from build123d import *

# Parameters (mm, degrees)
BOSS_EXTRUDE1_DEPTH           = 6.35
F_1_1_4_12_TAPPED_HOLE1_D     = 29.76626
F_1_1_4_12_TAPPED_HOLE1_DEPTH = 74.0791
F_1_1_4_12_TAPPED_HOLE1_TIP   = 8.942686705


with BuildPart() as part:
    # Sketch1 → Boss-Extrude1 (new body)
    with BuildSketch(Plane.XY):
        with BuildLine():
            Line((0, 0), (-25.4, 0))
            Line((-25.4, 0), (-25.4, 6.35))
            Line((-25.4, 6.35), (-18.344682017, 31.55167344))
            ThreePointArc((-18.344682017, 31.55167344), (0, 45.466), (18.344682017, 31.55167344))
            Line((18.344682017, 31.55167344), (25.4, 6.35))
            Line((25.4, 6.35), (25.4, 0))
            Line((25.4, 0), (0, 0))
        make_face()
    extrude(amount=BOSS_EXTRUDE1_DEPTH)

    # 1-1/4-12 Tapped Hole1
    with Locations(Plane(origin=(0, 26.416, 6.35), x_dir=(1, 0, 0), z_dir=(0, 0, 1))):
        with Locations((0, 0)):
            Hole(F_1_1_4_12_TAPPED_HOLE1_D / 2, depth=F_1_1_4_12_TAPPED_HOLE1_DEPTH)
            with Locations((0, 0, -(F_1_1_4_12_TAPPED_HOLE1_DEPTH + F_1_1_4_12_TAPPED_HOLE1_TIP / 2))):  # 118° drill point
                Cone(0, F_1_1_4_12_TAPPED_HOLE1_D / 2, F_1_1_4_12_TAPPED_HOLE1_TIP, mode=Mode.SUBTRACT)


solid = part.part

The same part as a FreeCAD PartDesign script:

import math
import FreeCAD as App
import Part
import Sketcher

V = App.Vector
Q = App.Units.Quantity

doc = App.newDocument("Part")
params = doc.addObject("Spreadsheet::Sheet", "Params")
for row, (alias, value) in enumerate([
    ("sketch1_width", "2 in"),
    ("sketch1_radius", "0.75 in"),
    ("sketch1_height", "0.25 in"),
    ("pad1_length", "0.25 in"),
    ("hole_diameter", "1.1719 in"),
    ("hole_depth", "2.9165 in"),
], start=1):
    params.set(f"A{row}", alias)
    params.set(f"B{row}", "=" + value)
    params.setAlias(f"B{row}", alias)

body = doc.addObject("PartDesign::Body", "Body")

sketch1 = body.newObject("Sketcher::SketchObject", "Sketch")
sketch1.AttachmentSupport = (doc.getObject("XY_Plane"), [""])
sketch1.MapMode = "FlatFace"
sketch1.addGeometry([
    Part.LineSegment(V(-25, 6, 0), V(-25, 0, 0)),
    Part.LineSegment(V(-25, 0, 0), V(25, 0, 0)),
    Part.LineSegment(V(25, 0, 0), V(25, 6, 0)),
    Part.LineSegment(V(25, 6, 0), V(18, 32, 0)),
    Part.ArcOfCircle(Part.Circle(V(0, 26, 0), V(0, 0, 1), 19), math.radians(16), math.radians(164)),
    Part.LineSegment(V(-18, 32, 0), V(-25, 6, 0)),
], False)
sketch1.addConstraint([
    Sketcher.Constraint("Coincident", 0, 2, 1, 1),
    Sketcher.Constraint("Coincident", 1, 2, 2, 1),
    Sketcher.Constraint("Coincident", 2, 2, 3, 1),
    Sketcher.Constraint("Tangent", 3, 2, 4, 1),
    Sketcher.Constraint("Tangent", 4, 2, 5, 1),
    Sketcher.Constraint("Coincident", 5, 2, 0, 1),
    Sketcher.Constraint("Vertical", 0),
    Sketcher.Constraint("Horizontal", 1),
    Sketcher.Constraint("Vertical", 2),
    Sketcher.Constraint("Symmetric", 0, 2, 1, 2, -1, 1),
    Sketcher.Constraint("Symmetric", 3, 2, 4, 2, -2),
    Sketcher.Constraint("DistanceX", 1, 1, 1, 2, Q("2 in")),
    Sketcher.Constraint("Radius", 4, Q("0.75 in")),
    Sketcher.Constraint("DistanceY", 0, 2, 0, 1, Q("0.25 in")),
    Sketcher.Constraint("DistanceY", -1, 1, 4, 3, Q("1.04 in")),
])
sketch1.setExpression("Constraints[11]", "Params.sketch1_width")
sketch1.setExpression("Constraints[12]", "Params.sketch1_radius")
sketch1.setExpression("Constraints[13]", "Params.sketch1_height")
pad1 = body.newObject("PartDesign::Pad", "Pad")
pad1.Profile = sketch1
pad1.setExpression("Length", "Params.pad1_length")

sketch2 = body.newObject("Sketcher::SketchObject", "Sketch001")
sketch2.AttachmentSupport = (doc.getObject("XY_Plane"), [""])
sketch2.MapMode = "FlatFace"
sketch2.AttachmentOffset = App.Placement(V(0, 0, 0.25 * 25.4), App.Rotation())
sketch2.addGeometry(Part.Circle(V(0, 26, 0), V(0, 0, 1), 15), False)
sketch2.addConstraint([
    Sketcher.Constraint("PointOnObject", 0, 3, -2),
    Sketcher.Constraint("Diameter", 0, Q("1.1719 in")),
    Sketcher.Constraint("DistanceY", -1, 1, 0, 3, Q("1.04 in")),
])
doc.recompute()
hole = body.newObject("PartDesign::Hole", "Hole")
hole.Profile = sketch2
hole.ThreadType = "None"
hole.setExpression("Diameter", "Params.hole_diameter")
hole.DepthType = "Dimension"
hole.setExpression("Depth", "Params.hole_depth")
hole.DrillPoint = "Angled"
hole.DrillPointAngle = 118

doc.recompute()
